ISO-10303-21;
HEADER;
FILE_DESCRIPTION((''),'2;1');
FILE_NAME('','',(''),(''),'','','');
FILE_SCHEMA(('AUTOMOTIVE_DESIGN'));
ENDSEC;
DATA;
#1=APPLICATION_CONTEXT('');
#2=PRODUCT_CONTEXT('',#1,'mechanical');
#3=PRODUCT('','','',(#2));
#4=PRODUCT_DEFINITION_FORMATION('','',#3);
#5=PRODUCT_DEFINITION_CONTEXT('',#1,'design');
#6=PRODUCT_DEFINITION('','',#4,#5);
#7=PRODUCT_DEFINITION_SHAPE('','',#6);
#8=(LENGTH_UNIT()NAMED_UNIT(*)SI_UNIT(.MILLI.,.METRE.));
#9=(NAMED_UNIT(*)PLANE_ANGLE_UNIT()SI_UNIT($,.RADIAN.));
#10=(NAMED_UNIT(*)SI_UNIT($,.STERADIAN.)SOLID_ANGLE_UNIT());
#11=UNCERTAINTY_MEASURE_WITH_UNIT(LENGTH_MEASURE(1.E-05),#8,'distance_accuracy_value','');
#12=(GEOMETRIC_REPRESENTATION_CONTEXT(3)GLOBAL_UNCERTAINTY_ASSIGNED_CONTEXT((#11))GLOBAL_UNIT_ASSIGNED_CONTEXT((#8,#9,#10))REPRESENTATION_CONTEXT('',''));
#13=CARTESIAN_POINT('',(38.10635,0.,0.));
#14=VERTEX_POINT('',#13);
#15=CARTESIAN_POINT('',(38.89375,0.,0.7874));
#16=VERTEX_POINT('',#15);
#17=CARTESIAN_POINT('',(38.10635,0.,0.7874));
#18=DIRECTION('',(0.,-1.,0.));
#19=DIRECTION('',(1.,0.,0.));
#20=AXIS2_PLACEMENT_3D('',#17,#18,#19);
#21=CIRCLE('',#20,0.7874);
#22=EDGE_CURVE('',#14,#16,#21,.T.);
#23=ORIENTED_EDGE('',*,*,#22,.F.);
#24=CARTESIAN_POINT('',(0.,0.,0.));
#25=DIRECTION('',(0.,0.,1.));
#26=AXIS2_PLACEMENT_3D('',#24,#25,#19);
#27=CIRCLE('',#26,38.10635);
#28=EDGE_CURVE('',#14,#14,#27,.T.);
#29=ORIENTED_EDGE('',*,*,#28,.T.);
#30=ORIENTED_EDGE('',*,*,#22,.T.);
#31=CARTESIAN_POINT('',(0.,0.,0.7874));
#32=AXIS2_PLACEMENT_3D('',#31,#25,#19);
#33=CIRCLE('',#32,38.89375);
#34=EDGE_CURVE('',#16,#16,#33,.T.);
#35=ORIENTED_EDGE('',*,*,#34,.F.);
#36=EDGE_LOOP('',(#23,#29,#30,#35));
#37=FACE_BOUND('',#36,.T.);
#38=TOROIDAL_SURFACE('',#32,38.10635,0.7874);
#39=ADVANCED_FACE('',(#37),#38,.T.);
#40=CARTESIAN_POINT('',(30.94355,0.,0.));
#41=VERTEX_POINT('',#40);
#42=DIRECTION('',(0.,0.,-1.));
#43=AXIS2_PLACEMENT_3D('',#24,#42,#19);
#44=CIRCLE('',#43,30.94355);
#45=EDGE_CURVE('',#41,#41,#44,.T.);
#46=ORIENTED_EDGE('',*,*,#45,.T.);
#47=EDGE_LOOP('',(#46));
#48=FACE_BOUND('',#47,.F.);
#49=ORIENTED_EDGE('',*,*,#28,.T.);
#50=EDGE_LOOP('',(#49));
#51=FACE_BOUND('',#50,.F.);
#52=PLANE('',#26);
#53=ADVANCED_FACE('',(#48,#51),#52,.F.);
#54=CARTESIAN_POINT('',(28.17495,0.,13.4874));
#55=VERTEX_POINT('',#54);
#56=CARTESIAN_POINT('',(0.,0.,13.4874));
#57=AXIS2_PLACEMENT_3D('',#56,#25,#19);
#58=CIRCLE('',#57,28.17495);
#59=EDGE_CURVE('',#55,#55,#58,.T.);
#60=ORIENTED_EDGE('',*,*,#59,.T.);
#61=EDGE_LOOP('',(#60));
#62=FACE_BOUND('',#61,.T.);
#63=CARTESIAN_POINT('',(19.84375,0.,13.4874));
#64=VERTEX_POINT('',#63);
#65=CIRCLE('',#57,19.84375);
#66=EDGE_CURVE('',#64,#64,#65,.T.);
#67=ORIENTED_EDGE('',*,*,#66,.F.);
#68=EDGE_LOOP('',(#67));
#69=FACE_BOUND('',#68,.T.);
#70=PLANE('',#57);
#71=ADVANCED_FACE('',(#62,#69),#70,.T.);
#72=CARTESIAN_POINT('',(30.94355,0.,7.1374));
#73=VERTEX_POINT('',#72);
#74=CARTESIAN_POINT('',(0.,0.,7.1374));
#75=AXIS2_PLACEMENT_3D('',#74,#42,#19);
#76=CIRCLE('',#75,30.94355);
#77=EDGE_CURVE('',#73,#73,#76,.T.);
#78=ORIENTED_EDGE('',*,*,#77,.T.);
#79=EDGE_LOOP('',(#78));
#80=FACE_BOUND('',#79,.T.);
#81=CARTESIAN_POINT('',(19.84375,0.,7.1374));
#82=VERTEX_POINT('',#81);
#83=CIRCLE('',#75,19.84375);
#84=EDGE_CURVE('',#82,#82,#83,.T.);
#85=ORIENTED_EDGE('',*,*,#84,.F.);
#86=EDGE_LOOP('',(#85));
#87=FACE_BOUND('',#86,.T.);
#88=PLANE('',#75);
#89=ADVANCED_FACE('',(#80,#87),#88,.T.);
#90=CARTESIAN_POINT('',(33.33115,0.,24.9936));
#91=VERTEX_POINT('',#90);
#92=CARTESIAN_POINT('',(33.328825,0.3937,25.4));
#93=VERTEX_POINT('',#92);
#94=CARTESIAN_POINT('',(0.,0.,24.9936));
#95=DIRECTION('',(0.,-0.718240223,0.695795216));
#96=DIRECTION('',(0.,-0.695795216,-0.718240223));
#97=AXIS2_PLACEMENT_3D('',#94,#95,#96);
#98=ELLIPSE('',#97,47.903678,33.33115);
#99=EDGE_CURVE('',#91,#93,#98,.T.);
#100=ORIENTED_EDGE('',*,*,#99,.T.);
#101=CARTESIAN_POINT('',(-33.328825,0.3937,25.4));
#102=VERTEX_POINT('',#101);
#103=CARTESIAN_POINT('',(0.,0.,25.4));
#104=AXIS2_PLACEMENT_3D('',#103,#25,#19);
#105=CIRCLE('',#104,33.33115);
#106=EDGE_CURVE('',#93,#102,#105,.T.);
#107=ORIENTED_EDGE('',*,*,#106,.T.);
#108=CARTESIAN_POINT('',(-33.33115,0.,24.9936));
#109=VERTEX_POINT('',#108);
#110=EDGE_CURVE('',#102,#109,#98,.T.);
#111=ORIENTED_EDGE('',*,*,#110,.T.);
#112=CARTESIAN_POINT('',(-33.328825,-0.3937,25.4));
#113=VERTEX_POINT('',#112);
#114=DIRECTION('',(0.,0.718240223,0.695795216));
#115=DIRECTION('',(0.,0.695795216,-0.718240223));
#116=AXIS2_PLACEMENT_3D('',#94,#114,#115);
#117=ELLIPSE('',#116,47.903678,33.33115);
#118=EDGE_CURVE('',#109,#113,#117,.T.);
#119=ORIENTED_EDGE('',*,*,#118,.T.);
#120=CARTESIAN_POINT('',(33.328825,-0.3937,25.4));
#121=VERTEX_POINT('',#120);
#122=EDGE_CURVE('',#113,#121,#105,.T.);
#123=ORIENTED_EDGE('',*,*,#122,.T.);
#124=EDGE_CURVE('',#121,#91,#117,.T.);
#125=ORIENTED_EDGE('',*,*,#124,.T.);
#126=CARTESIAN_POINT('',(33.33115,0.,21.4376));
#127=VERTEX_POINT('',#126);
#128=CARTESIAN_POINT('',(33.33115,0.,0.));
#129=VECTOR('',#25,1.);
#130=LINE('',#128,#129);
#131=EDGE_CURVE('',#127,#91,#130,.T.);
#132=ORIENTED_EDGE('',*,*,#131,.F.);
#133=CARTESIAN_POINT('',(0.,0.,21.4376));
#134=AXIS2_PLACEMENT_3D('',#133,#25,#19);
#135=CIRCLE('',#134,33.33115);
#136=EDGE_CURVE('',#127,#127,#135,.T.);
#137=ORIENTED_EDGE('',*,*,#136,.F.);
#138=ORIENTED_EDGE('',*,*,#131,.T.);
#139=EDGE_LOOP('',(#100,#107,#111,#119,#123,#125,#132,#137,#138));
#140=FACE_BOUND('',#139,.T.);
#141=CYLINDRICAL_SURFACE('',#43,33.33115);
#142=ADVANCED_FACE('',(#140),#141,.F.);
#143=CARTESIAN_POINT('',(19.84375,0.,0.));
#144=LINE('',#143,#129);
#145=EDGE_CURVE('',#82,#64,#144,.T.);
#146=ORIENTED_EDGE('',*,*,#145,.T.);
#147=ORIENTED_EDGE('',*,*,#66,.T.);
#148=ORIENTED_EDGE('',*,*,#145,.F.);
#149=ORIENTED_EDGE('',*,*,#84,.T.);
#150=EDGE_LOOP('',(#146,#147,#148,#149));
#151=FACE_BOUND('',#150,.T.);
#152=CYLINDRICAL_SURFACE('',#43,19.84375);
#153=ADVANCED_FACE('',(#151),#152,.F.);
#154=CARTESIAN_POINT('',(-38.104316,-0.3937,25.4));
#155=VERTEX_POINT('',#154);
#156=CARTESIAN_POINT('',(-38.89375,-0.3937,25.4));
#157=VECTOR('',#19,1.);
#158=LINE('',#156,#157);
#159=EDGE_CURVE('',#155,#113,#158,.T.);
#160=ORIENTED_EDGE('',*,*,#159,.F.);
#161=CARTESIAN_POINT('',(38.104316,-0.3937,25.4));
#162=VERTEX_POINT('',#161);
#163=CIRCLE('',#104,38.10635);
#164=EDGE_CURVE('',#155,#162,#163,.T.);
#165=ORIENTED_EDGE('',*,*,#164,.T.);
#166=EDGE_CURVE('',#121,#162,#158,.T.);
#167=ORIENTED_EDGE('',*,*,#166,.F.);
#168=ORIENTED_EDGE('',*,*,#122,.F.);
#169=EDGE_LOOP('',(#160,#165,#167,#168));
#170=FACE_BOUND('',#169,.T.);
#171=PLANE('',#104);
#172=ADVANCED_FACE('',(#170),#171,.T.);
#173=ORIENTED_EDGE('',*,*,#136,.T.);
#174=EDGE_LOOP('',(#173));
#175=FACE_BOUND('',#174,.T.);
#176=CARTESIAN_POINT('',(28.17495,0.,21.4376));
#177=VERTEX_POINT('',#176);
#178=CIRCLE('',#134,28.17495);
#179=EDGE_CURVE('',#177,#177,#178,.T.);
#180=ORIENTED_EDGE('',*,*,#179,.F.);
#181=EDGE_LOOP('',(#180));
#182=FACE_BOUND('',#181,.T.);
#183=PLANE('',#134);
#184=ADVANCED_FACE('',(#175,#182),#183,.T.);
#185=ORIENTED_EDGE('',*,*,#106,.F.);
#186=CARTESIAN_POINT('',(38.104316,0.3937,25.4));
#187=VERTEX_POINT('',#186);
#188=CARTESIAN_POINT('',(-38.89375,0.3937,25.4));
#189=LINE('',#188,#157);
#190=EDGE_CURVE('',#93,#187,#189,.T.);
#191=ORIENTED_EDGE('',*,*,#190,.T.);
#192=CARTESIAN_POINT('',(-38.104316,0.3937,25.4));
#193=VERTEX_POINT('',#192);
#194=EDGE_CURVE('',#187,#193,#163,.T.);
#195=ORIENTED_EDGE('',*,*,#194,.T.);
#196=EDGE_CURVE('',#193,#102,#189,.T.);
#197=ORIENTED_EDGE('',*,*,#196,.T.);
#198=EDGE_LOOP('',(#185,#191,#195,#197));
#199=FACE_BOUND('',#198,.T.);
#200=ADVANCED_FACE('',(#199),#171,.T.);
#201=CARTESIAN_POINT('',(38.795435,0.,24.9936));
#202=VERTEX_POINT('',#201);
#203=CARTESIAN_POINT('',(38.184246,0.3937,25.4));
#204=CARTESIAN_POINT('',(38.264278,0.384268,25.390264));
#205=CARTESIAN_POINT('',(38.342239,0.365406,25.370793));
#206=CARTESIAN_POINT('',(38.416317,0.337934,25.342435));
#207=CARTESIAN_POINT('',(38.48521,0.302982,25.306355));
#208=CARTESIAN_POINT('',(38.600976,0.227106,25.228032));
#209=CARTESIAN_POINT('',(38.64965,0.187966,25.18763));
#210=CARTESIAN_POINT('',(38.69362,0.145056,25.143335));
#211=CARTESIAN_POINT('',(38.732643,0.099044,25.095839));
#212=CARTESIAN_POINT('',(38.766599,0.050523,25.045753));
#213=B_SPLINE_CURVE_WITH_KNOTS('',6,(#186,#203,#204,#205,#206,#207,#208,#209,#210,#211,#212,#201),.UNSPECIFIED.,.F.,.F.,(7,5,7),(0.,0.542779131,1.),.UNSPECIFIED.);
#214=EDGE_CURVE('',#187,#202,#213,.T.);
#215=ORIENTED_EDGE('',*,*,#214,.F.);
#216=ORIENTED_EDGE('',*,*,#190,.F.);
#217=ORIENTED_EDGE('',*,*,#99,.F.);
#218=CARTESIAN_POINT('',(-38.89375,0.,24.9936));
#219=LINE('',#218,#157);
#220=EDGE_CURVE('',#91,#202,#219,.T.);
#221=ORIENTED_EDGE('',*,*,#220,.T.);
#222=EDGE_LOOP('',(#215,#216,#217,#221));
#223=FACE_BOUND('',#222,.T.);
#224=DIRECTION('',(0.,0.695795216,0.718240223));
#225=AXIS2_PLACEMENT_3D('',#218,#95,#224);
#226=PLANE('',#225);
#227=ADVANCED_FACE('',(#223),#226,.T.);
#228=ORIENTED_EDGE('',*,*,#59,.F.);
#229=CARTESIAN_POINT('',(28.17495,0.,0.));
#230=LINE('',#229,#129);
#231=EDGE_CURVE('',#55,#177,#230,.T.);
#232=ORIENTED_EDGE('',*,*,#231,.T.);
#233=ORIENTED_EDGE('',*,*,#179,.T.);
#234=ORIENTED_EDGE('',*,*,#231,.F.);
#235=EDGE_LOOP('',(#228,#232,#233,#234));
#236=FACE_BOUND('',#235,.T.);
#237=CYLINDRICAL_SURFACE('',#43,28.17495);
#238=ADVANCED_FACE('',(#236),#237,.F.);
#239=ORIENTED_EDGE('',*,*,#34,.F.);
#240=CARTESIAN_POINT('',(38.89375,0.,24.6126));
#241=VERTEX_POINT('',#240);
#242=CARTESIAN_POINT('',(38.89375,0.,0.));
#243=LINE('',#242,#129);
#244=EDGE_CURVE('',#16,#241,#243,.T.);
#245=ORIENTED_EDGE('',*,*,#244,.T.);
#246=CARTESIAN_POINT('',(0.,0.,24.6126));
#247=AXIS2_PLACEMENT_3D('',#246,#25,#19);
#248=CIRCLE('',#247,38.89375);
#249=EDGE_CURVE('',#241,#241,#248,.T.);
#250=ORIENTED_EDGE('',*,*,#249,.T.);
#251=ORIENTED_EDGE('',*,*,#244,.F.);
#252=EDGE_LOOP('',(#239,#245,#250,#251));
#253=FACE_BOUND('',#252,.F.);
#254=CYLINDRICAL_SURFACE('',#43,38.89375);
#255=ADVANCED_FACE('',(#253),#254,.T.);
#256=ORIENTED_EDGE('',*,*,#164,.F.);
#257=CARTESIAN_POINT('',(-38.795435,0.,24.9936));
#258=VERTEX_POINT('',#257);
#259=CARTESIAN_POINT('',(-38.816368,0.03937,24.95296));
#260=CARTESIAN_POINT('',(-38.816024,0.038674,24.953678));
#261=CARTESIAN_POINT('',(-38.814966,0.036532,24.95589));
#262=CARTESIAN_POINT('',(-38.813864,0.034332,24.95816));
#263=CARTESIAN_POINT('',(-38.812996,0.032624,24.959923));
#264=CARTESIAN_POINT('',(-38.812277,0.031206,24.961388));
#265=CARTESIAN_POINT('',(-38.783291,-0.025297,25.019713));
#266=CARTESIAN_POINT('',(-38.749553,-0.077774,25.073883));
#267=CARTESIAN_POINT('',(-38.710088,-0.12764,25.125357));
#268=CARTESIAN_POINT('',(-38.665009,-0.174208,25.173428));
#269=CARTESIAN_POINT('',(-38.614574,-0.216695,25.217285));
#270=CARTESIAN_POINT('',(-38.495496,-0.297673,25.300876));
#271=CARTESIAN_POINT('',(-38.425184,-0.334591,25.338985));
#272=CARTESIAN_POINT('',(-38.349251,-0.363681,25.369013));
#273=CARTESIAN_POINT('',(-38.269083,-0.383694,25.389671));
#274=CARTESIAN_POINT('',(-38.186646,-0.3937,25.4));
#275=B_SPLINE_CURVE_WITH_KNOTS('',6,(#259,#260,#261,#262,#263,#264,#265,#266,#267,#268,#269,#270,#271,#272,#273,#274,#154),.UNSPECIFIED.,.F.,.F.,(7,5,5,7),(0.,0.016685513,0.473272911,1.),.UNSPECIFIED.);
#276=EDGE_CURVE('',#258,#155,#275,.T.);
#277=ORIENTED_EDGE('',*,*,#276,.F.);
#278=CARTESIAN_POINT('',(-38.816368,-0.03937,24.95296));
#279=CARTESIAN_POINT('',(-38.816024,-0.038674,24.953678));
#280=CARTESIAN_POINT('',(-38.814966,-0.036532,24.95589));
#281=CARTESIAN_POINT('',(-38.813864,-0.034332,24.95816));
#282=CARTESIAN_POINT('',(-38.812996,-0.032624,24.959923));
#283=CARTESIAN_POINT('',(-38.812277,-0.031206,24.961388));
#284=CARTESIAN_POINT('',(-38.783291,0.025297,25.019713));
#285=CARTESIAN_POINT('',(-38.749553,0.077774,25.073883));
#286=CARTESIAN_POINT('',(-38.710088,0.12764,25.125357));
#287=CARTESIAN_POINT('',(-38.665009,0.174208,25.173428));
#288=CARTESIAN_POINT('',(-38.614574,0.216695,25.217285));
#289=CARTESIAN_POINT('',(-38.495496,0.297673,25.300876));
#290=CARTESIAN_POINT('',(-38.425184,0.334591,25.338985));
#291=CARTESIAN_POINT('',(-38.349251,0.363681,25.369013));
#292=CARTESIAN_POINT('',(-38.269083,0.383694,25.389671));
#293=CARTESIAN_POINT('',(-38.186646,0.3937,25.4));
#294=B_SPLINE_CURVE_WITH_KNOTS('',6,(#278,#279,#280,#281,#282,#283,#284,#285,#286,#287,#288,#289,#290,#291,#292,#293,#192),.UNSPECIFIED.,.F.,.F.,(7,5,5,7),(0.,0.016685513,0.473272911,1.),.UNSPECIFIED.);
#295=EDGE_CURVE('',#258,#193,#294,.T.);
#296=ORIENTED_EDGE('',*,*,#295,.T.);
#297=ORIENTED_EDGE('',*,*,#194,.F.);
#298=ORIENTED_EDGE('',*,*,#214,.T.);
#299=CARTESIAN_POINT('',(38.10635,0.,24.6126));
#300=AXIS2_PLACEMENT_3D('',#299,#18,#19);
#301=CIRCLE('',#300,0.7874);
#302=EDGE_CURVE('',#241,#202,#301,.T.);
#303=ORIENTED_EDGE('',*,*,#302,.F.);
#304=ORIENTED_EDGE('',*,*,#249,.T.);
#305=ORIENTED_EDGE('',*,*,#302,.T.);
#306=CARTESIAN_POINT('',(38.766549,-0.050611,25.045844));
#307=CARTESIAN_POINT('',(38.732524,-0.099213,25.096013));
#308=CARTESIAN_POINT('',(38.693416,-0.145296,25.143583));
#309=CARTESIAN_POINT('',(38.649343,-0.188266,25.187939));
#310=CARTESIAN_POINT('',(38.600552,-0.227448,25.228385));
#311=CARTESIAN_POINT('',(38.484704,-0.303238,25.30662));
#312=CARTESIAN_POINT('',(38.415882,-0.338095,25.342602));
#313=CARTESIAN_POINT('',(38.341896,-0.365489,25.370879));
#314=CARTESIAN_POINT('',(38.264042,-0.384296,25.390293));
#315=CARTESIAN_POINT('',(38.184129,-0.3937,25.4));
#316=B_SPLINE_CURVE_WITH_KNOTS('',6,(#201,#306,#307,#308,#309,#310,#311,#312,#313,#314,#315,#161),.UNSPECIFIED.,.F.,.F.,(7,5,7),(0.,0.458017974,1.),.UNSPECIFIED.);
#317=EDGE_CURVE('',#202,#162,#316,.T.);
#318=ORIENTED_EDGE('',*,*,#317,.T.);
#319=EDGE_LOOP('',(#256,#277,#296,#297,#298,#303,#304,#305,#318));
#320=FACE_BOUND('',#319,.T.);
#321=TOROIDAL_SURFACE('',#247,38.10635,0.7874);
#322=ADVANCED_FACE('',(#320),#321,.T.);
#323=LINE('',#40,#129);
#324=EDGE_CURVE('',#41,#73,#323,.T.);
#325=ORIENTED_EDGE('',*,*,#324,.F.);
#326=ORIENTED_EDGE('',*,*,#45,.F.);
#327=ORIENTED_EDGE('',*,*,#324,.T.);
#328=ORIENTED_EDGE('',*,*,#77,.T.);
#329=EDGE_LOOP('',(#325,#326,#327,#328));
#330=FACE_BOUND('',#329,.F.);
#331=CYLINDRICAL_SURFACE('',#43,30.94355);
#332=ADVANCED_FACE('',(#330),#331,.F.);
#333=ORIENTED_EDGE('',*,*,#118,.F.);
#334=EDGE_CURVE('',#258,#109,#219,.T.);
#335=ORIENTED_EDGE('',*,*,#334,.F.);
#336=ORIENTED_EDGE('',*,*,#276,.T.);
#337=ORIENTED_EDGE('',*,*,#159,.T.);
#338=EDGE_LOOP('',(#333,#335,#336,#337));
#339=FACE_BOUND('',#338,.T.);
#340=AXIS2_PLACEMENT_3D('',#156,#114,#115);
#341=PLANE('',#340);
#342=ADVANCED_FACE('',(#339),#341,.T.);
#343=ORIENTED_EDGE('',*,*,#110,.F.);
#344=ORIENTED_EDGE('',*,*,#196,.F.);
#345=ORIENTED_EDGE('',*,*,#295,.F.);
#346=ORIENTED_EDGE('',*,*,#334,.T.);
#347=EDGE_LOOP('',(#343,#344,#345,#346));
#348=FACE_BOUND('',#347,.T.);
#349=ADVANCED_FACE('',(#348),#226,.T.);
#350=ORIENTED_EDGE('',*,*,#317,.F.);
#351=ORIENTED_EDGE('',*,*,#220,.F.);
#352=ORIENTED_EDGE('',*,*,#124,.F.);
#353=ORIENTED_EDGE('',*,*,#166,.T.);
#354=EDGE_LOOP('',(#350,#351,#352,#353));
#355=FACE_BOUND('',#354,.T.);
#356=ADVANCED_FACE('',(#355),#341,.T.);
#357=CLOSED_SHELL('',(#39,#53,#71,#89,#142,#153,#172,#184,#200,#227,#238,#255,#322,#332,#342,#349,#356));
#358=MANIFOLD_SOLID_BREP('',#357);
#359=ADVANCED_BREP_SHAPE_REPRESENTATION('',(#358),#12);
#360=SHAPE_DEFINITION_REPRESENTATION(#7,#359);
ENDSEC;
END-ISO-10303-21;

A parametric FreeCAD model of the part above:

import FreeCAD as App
import Part
import Sketcher
from FreeCAD import Vector
Q = App.Units.Quantity


def edges_at(feature, points):
    """Names of the edges that pass closest to the given points."""
    edges = feature.Shape.Edges
    near = lambda p: min(range(len(edges)), key=lambda i: edges[i].distToShape(Part.Vertex(*p))[0])
    return sorted({f"Edge{near(p) + 1}" for p in points})

doc = App.newDocument("Part")
params = doc.addObject("Spreadsheet::Sheet", "Params")
for row, (alias, value) in enumerate([
    ("sketch1_diameter", "3.0625 in"),
    ("pad1_length", "1 in"),
    ("pad2_length", "0.844 in"),
    ("sketch3_diameter", "1.5625 in"),
    ("pad3_length", "0.531 in"),
    ("sketch4_diameter", "1.5625 in"),
    ("pocket1_length", "0.281 in"),
    ("fillet_radius", "0.031 in"),
    ("sketch5_width", "0.031 in"),
    ("pocket2_length", "5 in"),
], start=1):
    params.set(f"A{row}", alias)
    params.set(f"B{row}", "=" + value)
    params.setAlias(f"B{row}", alias)

body = doc.addObject("PartDesign::Body", "Body")

sketch1 = body.newObject("Sketcher::SketchObject", "Sketch")
sketch1.AttachmentSupport = (doc.getObject("XY_Plane"), [""])
sketch1.MapMode = "FlatFace"
sketch1.addGeometry(Part.Circle(Vector(0, 0, 0), Vector(0, 0, 1), 39), False)
sketch1.addGeometry(Part.Circle(Vector(0, 0, 0), Vector(0, 0, 1), 33), False)
sketch1.addConstraint(Sketcher.Constraint("Coincident", 0, 3, -1, 1))
sketch1.addConstraint(Sketcher.Constraint("Coincident", 1, 3, -1, 1))
sketch1.addConstraint(Sketcher.Constraint("Diameter", 0, Q("3.0625 in")))
sketch1.addConstraint(Sketcher.Constraint("Diameter", 1, Q("2.6245 in")))
sketch1.setExpression("Constraints[2]", "Params.sketch1_diameter")
pad1 = body.newObject("PartDesign::Pad", "Pad")
pad1.Profile = sketch1
pad1.setExpression("Length", "Params.pad1_length")

sketch2 = body.newObject("Sketcher::SketchObject", "Sketch001")
sketch2.AttachmentSupport = (doc.getObject("XY_Plane"), [""])
sketch2.MapMode = "FlatFace"
sketch2.addGeometry(Part.Circle(Vector(0, 0, 0), Vector(0, 0, 1), 33), False)
sketch2.addGeometry(Part.Circle(Vector(0, 0, 0), Vector(0, 0, 1), 28), False)
sketch2.addConstraint(Sketcher.Constraint("Coincident", 0, 3, -1, 1))
sketch2.addConstraint(Sketcher.Constraint("Coincident", 1, 3, -1, 1))
sketch2.addConstraint(Sketcher.Constraint("Diameter", 0, Q("2.6245 in")))
sketch2.addConstraint(Sketcher.Constraint("Diameter", 1, Q("2.2185 in")))
pad2 = body.newObject("PartDesign::Pad", "Pad001")
pad2.Profile = sketch2
pad2.setExpression("Length", "Params.pad2_length")

sketch3 = body.newObject("Sketcher::SketchObject", "Sketch002")
sketch3.AttachmentSupport = (doc.getObject("XY_Plane"), [""])
sketch3.MapMode = "FlatFace"
sketch3.addGeometry(Part.Circle(Vector(0, 0, 0), Vector(0, 0, 1), 28), False)
sketch3.addGeometry(Part.Circle(Vector(0, 0, 0), Vector(0, 0, 1), 20), False)
sketch3.addConstraint(Sketcher.Constraint("Coincident", 0, 3, -1, 1))
sketch3.addConstraint(Sketcher.Constraint("Coincident", 1, 3, -1, 1))
sketch3.addConstraint(Sketcher.Constraint("Diameter", 1, Q("1.5625 in")))
sketch3.addConstraint(Sketcher.Constraint("Diameter", 0, Q("2.2185 in")))
sketch3.setExpression("Constraints[2]", "Params.sketch3_diameter")
pad3 = body.newObject("PartDesign::Pad", "Pad002")
pad3.Profile = sketch3
pad3.setExpression("Length", "Params.pad3_length")

sketch4 = body.newObject("Sketcher::SketchObject", "Sketch003")
sketch4.AttachmentSupport = (doc.getObject("XY_Plane"), [""])
sketch4.MapMode = "FlatFace"
sketch4.addGeometry(Part.Circle(Vector(0, 0, 0), Vector(0, 0, 1), 31), False)
sketch4.addGeometry(Part.Circle(Vector(0, 0, 0), Vector(0, 0, 1), 20), False)
sketch4.addConstraint(Sketcher.Constraint("Coincident", 0, 3, -1, 1))
sketch4.addConstraint(Sketcher.Constraint("Coincident", 1, 3, -1, 1))
sketch4.addConstraint(Sketcher.Constraint("Diameter", 1, Q("1.5625 in")))
sketch4.addConstraint(Sketcher.Constraint("Diameter", 0, Q("2.4365 in")))
sketch4.setExpression("Constraints[2]", "Params.sketch4_diameter")
pocket1 = body.newObject("PartDesign::Pocket", "Pocket")
pocket1.Profile = sketch4
pocket1.setExpression("Length", "Params.pocket1_length")
pocket1.Reversed = True
doc.recompute()

fillet = body.newObject("PartDesign::Fillet", "Fillet")
fillet.Base = (pocket1, edges_at(pocket1, [(-38.894, 0, 25.4), (-38.894, 0, 0)]))
fillet.setExpression("Radius", "Params.fillet_radius")

sketch5 = body.newObject("Sketcher::SketchObject", "Sketch004")
sketch5.AttachmentSupport = (doc.getObject("YZ_Plane"), [""])
sketch5.MapMode = "FlatFace"
sketch5.AttachmentOffset = App.Placement(Vector(0, 0, -1.53125 * 25.4), App.Rotation())
sketch5.addGeometry(Part.LineSegment(Vector(0, 25, 0), Vector(0.4, 25.4, 0)), False)
sketch5.addGeometry(Part.LineSegment(Vector(0.4, 25.4, 0), Vector(-0.4, 25.4, 0)), False)
sketch5.addGeometry(Part.LineSegment(Vector(-0.4, 25.4, 0), Vector(0, 25, 0)), False)
sketch5.addConstraint(Sketcher.Constraint("Coincident", 0, 2, 1, 1))
sketch5.addConstraint(Sketcher.Constraint("Coincident", 1, 2, 2, 1))
sketch5.addConstraint(Sketcher.Constraint("Coincident", 2, 2, 0, 1))
sketch5.addConstraint(Sketcher.Constraint("Horizontal", 1))
sketch5.addConstraint(Sketcher.Constraint("PointOnObject", 2, 2, -2))
sketch5.addConstraint(Sketcher.Constraint("Equal", 0, 2))
sketch5.addConstraint(Sketcher.Constraint("DistanceY", -1, 1, 0, 2, Q("1 in")))
sketch5.addConstraint(Sketcher.Constraint("DistanceX", 1, 2, 1, 1, Q("0.031 in")))
sketch5.addConstraint(Sketcher.Constraint("DistanceY", -1, 1, 2, 2, Q("0.984 in")))
sketch5.setExpression("Constraints[7]", "Params.sketch5_width")
pocket2 = body.newObject("PartDesign::Pocket", "Pocket001")
pocket2.Profile = sketch5
pocket2.setExpression("Length", "Params.pocket2_length")
pocket2.Reversed = True

doc.recompute()
